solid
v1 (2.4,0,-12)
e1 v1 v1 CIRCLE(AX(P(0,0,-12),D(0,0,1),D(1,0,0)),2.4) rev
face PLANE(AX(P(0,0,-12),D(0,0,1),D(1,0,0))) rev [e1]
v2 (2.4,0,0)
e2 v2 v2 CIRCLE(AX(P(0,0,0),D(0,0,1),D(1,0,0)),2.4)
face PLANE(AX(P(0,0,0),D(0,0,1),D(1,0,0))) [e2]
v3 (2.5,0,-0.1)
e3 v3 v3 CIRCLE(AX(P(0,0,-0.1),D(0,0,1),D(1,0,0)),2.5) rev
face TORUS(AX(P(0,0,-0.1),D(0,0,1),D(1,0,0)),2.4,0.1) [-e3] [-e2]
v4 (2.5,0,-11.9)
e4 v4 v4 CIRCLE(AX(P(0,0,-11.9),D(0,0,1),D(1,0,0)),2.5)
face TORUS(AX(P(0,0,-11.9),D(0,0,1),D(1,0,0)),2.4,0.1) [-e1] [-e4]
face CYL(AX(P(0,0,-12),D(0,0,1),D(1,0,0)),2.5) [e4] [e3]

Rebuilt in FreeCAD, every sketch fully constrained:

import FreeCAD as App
import Part
import Sketcher
from FreeCAD import Vector
Q = App.Units.Quantity


def edges_at(feature, points):
    """Names of the edges that pass closest to the given points."""
    edges = feature.Shape.Edges
    near = lambda p: min(range(len(edges)), key=lambda i: edges[i].distToShape(Part.Vertex(*p))[0])
    return sorted({f"Edge{near(p) + 1}" for p in points})

doc = App.newDocument("Part")
body = doc.addObject("PartDesign::Body", "Body")

# Sketch on XY plane
sketch1 = body.newObject("Sketcher::SketchObject", "Sketch")
sketch1.AttachmentSupport = (doc.getObject("XY_Plane"), [""])
sketch1.MapMode = "FlatFace"
sketch1.addGeometry(Part.Circle(Vector(0, 0, 0), Vector(0, 0, 1), 2.5), False)
sketch1.addConstraint([
    Sketcher.Constraint("Coincident", 0, 3, -1, 1),
    Sketcher.Constraint("Diameter", 0, Q("5 mm")),
])
pad1 = body.newObject("PartDesign::Pad", "Pad")
pad1.Profile = sketch1
pad1.Length = 12
pad1.Reversed = True
doc.recompute()

fillet = body.newObject("PartDesign::Fillet", "Fillet")
fillet.Base = (pad1, edges_at(pad1, [(-2.5, 0, 0), (-2.5, 0, -12)]))
fillet.Radius = 0.1

doc.recompute()
